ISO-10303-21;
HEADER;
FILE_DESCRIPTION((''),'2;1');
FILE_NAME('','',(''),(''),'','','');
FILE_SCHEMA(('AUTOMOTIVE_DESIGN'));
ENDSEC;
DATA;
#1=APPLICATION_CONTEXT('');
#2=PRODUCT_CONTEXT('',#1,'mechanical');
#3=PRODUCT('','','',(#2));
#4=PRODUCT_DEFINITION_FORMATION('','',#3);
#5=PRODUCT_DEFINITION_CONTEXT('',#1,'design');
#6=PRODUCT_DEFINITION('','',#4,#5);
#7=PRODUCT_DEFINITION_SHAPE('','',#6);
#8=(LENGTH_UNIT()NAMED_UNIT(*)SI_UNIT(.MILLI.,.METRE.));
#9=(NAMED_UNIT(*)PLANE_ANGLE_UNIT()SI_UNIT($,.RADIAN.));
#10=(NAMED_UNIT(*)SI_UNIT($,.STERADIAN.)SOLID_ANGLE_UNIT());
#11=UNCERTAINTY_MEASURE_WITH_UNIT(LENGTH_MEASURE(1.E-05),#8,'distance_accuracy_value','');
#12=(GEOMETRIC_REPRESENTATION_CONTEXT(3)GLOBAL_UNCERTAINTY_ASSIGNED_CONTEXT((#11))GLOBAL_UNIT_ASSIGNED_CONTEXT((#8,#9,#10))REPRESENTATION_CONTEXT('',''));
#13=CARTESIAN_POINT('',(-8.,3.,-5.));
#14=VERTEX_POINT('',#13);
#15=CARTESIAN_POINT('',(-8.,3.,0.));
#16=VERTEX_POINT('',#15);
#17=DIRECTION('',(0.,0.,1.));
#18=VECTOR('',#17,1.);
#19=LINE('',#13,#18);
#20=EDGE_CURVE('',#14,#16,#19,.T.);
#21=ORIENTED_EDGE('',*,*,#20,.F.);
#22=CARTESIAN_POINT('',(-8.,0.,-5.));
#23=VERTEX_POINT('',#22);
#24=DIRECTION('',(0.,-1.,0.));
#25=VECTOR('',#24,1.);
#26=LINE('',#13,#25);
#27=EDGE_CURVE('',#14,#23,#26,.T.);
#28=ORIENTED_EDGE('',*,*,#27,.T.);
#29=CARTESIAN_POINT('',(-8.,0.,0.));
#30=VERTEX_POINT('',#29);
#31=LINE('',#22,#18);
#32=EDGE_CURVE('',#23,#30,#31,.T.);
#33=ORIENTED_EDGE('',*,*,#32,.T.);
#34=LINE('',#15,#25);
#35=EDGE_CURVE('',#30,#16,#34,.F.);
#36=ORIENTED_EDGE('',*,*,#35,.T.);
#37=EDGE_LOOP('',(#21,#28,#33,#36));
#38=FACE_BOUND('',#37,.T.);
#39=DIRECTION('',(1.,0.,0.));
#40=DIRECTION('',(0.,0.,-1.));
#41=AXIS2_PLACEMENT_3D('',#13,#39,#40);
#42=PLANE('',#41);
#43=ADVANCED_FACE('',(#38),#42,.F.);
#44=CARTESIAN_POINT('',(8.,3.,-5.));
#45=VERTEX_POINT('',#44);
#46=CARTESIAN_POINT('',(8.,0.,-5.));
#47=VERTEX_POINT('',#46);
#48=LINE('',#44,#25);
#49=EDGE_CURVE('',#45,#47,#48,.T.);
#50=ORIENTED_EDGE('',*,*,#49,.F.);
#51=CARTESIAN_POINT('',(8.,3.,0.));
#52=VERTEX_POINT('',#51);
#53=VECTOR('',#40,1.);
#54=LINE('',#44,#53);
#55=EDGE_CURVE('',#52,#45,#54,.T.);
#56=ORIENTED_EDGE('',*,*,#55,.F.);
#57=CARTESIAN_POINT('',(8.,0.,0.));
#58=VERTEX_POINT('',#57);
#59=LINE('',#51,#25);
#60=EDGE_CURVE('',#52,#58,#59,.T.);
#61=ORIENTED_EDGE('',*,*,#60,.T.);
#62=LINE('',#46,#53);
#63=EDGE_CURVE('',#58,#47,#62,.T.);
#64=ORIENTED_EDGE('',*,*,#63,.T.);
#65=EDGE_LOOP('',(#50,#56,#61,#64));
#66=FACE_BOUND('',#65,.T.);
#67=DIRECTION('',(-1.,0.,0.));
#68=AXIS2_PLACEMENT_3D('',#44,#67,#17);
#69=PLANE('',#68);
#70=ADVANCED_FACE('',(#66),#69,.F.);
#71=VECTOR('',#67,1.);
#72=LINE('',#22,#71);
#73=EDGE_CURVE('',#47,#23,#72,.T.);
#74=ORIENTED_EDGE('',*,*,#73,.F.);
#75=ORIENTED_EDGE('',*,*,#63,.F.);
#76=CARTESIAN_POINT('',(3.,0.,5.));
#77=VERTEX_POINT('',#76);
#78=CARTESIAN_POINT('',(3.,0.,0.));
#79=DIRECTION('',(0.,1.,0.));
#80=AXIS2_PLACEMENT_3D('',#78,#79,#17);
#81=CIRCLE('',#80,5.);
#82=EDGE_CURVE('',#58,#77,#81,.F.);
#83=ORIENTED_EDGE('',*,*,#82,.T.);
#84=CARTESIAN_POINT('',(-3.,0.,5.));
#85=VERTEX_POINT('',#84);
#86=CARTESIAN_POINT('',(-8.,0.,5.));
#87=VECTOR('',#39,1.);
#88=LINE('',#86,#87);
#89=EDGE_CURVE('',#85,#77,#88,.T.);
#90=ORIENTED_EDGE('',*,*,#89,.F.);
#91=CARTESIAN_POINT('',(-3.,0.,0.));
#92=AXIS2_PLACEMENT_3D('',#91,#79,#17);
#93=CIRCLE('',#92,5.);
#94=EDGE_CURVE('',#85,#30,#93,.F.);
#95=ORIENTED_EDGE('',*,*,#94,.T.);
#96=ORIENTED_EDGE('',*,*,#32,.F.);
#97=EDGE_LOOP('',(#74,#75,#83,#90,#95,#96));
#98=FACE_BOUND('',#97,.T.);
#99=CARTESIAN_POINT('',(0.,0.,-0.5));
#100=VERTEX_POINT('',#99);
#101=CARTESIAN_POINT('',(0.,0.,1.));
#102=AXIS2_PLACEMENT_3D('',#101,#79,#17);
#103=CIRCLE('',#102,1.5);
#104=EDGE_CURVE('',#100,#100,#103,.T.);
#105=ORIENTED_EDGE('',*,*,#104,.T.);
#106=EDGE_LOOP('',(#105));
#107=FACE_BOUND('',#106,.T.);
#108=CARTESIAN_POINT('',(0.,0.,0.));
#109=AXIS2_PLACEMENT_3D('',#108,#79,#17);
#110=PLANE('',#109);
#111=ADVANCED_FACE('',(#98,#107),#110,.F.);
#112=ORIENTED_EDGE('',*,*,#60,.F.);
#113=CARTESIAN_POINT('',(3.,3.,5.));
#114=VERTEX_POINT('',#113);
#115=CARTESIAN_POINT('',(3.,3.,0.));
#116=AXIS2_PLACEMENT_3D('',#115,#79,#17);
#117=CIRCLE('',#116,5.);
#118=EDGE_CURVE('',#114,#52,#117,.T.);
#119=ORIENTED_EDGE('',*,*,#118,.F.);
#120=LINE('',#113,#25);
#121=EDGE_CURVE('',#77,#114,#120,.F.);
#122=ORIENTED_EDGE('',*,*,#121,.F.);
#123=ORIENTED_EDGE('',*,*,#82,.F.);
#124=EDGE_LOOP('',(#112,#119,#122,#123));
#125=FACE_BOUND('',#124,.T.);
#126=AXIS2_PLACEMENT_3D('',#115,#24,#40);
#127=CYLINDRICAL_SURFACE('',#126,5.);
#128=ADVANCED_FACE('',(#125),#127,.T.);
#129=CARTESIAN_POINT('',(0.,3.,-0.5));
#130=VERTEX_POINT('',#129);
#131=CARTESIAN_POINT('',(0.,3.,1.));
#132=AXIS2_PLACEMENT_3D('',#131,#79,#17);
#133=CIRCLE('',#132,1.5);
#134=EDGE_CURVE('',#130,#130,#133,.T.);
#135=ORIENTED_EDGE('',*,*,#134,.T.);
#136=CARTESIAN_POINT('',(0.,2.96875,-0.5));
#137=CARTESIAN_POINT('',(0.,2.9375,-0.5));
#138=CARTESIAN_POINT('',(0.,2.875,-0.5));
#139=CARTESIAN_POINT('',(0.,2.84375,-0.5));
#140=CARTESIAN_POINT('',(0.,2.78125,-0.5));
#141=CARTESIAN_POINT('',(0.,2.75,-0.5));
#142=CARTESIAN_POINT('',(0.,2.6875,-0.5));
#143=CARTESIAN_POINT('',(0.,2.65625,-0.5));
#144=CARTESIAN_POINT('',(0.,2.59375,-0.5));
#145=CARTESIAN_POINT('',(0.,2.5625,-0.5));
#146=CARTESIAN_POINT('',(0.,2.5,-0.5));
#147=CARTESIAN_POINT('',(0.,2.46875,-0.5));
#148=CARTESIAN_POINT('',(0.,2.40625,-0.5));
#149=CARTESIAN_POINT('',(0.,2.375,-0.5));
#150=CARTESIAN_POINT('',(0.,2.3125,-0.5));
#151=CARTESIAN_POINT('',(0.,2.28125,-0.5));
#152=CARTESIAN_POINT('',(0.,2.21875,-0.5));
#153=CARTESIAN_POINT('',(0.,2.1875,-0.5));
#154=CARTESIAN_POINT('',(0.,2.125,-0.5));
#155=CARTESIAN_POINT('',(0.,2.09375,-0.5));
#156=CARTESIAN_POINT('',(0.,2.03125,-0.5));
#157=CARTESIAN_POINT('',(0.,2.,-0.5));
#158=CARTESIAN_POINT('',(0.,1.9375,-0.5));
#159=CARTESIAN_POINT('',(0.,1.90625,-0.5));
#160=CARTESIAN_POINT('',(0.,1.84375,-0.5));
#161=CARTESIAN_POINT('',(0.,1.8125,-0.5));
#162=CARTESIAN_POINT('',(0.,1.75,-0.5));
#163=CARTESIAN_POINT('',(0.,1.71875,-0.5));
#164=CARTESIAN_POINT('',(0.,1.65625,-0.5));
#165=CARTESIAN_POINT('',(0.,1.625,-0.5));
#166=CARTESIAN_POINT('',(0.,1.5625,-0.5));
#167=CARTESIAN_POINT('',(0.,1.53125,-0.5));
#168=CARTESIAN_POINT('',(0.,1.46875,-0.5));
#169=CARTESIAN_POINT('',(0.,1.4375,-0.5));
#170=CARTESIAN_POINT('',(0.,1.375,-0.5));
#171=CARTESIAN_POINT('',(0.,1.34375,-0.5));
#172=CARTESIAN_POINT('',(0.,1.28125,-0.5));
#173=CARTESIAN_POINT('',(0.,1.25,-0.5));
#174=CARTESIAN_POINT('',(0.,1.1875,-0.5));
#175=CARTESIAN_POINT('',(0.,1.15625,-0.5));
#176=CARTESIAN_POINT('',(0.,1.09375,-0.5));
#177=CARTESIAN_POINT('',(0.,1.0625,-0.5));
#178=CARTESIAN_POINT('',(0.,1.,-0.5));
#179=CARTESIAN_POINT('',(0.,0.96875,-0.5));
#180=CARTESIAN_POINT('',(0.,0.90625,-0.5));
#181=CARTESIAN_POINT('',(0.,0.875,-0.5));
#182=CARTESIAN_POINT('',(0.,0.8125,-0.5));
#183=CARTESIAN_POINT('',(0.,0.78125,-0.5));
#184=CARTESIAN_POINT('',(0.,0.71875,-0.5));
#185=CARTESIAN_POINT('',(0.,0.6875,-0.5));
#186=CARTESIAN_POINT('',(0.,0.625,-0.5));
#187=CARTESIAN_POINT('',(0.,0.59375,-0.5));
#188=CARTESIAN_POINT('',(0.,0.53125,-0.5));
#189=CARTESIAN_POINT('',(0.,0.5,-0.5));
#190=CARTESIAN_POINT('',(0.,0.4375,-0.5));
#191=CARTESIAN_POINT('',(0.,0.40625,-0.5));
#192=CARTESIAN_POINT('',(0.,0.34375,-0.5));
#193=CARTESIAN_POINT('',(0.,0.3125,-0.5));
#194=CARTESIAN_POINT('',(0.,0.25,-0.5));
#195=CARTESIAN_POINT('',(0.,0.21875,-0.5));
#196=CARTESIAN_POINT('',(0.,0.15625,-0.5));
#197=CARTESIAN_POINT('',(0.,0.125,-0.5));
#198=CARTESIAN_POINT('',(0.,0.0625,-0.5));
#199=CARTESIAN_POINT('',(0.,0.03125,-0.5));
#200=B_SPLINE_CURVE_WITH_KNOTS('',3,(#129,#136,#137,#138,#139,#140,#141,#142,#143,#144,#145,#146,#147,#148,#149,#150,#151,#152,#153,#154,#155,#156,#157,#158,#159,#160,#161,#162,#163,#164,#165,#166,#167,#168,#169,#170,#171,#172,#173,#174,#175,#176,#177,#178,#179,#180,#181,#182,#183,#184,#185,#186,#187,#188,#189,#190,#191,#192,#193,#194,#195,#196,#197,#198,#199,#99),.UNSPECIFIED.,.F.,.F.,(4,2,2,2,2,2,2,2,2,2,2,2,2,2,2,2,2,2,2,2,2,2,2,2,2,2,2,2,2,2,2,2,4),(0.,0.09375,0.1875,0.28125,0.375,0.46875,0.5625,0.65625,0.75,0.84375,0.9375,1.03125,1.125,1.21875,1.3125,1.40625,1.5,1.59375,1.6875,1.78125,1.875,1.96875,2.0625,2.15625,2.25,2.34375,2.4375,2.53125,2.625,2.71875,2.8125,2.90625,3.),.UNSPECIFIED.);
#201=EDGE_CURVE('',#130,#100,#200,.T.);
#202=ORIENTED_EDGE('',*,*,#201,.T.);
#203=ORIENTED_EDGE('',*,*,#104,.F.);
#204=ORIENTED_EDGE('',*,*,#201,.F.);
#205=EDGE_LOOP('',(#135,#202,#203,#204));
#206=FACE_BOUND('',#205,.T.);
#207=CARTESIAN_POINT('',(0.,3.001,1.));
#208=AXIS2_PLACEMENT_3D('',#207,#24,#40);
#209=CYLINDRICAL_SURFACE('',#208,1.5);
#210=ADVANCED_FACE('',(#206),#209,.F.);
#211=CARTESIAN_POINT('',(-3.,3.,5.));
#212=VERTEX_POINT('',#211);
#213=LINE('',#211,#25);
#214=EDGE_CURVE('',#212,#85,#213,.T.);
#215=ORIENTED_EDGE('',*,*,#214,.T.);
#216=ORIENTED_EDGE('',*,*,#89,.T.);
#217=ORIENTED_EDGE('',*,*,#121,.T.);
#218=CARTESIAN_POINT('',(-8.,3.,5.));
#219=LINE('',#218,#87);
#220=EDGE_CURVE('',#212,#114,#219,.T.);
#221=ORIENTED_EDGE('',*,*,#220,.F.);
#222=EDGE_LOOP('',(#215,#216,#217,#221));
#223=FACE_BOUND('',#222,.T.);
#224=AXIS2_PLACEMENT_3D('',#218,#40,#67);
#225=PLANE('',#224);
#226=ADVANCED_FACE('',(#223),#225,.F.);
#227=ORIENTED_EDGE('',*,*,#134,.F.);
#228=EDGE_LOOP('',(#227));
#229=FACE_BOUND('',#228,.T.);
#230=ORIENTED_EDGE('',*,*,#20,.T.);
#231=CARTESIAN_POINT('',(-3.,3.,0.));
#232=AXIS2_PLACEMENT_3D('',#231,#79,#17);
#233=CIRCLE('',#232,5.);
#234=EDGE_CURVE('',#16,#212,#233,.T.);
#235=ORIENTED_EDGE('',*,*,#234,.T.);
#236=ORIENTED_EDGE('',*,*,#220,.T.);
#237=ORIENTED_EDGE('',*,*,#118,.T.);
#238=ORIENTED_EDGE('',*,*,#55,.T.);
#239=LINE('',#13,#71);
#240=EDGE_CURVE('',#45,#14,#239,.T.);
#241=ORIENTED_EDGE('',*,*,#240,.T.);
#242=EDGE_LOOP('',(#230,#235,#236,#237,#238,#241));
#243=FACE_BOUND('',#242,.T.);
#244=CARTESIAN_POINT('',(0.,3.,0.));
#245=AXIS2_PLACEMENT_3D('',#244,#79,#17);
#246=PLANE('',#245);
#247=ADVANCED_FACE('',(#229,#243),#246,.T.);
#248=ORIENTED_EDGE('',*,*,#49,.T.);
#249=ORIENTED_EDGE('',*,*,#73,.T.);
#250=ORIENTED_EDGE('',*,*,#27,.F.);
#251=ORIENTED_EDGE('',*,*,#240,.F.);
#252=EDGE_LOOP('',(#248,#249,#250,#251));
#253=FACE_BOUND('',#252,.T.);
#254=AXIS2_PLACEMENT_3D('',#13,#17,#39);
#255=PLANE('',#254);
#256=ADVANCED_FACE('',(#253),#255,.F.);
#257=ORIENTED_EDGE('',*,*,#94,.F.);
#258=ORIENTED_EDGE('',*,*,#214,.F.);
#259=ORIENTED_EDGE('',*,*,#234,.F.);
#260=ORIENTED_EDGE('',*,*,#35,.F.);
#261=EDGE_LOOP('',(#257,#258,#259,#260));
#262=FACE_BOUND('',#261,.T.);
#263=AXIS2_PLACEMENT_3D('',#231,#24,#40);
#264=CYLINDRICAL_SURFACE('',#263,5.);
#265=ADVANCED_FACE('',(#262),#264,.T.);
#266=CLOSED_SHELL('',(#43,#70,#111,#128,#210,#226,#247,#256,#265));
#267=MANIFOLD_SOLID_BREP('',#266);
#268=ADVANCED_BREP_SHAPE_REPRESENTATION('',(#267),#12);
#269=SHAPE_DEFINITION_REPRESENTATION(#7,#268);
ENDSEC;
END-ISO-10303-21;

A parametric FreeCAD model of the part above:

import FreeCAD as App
import Part
import Sketcher
Q = App.Units.Quantity


def edges_at(feature, points):
    """Names of the edges that pass closest to the given points."""
    edges = feature.Shape.Edges
    near = lambda p: min(range(len(edges)), key=lambda i: edges[i].distToShape(Part.Vertex(*p))[0])
    return sorted({f"Edge{near(p) + 1}" for p in points})

doc = App.newDocument("Part")
body = doc.addObject("PartDesign::Body", "Body")

# Sketch on XZ plane
sketch1 = doc.addObject("Sketcher::SketchObject", "Sketch")
body.addObject(sketch1)
sketch1.AttachmentSupport = (doc.XZ_Plane, [""])
sketch1.MapMode = "FlatFace"
sketch1.addGeometry(Part.LineSegment(App.Vector(-8, -5, 0), App.Vector(-8, 5, 0)), False)
sketch1.addGeometry(Part.LineSegment(App.Vector(-8, 5, 0), App.Vector(8, 5, 0)), False)
sketch1.addGeometry(Part.LineSegment(App.Vector(8, 5, 0), App.Vector(8, -5, 0)), False)
sketch1.addGeometry(Part.LineSegment(App.Vector(8, -5, 0), App.Vector(-8, -5, 0)), False)
sketch1.addConstraint(Sketcher.Constraint("Coincident", 0, 2, 1, 1))
sketch1.addConstraint(Sketcher.Constraint("Coincident", 1, 2, 2, 1))
sketch1.addConstraint(Sketcher.Constraint("Coincident", 2, 2, 3, 1))
sketch1.addConstraint(Sketcher.Constraint("Coincident", 3, 2, 0, 1))
sketch1.addConstraint(Sketcher.Constraint("Vertical", 0))
sketch1.addConstraint(Sketcher.Constraint("Horizontal", 1))
sketch1.addConstraint(Sketcher.Constraint("Vertical", 2))
sketch1.addConstraint(Sketcher.Constraint("Horizontal", 3))
sketch1.addConstraint(Sketcher.Constraint("Symmetric", 0, 2, 2, 2, -1, 1))
sketch1.addConstraint(Sketcher.Constraint("DistanceX", 1, 1, 1, 2, Q("16 mm")))
sketch1.addConstraint(Sketcher.Constraint("DistanceY", 0, 1, 0, 2, Q("10 mm")))
pad1 = doc.addObject("PartDesign::Pad", "Pad")
body.addObject(pad1)
pad1.Profile = sketch1
pad1.Length = 3
pad1.Reversed = True

# Sketch on XZ plane
sketch2 = doc.addObject("Sketcher::SketchObject", "Sketch001")
body.addObject(sketch2)
sketch2.AttachmentSupport = (doc.XZ_Plane, [""])
sketch2.MapMode = "FlatFace"
sketch2.addGeometry(Part.Circle(App.Vector(0, 1, 0), App.Vector(0, 0, 1), 1.5), False)
sketch2.addConstraint(Sketcher.Constraint("PointOnObject", 0, 3, -2))
sketch2.addConstraint(Sketcher.Constraint("Diameter", 0, Q("3 mm")))
sketch2.addConstraint(Sketcher.Constraint("DistanceY", -1, 1, 0, 3, Q("1 mm")))
pocket1 = doc.addObject("PartDesign::Pocket", "Pocket")
body.addObject(pocket1)
pocket1.Profile = sketch2
pocket1.Type = "UpToFirst"
doc.recompute()

fillet = doc.addObject("PartDesign::Fillet", "Fillet")
body.addObject(fillet)
fillet.Base = (pocket1, edges_at(pocket1, [(8, 1.5, 5), (-8, 1.5, 5)]))
fillet.Radius = 5

doc.recompute()
